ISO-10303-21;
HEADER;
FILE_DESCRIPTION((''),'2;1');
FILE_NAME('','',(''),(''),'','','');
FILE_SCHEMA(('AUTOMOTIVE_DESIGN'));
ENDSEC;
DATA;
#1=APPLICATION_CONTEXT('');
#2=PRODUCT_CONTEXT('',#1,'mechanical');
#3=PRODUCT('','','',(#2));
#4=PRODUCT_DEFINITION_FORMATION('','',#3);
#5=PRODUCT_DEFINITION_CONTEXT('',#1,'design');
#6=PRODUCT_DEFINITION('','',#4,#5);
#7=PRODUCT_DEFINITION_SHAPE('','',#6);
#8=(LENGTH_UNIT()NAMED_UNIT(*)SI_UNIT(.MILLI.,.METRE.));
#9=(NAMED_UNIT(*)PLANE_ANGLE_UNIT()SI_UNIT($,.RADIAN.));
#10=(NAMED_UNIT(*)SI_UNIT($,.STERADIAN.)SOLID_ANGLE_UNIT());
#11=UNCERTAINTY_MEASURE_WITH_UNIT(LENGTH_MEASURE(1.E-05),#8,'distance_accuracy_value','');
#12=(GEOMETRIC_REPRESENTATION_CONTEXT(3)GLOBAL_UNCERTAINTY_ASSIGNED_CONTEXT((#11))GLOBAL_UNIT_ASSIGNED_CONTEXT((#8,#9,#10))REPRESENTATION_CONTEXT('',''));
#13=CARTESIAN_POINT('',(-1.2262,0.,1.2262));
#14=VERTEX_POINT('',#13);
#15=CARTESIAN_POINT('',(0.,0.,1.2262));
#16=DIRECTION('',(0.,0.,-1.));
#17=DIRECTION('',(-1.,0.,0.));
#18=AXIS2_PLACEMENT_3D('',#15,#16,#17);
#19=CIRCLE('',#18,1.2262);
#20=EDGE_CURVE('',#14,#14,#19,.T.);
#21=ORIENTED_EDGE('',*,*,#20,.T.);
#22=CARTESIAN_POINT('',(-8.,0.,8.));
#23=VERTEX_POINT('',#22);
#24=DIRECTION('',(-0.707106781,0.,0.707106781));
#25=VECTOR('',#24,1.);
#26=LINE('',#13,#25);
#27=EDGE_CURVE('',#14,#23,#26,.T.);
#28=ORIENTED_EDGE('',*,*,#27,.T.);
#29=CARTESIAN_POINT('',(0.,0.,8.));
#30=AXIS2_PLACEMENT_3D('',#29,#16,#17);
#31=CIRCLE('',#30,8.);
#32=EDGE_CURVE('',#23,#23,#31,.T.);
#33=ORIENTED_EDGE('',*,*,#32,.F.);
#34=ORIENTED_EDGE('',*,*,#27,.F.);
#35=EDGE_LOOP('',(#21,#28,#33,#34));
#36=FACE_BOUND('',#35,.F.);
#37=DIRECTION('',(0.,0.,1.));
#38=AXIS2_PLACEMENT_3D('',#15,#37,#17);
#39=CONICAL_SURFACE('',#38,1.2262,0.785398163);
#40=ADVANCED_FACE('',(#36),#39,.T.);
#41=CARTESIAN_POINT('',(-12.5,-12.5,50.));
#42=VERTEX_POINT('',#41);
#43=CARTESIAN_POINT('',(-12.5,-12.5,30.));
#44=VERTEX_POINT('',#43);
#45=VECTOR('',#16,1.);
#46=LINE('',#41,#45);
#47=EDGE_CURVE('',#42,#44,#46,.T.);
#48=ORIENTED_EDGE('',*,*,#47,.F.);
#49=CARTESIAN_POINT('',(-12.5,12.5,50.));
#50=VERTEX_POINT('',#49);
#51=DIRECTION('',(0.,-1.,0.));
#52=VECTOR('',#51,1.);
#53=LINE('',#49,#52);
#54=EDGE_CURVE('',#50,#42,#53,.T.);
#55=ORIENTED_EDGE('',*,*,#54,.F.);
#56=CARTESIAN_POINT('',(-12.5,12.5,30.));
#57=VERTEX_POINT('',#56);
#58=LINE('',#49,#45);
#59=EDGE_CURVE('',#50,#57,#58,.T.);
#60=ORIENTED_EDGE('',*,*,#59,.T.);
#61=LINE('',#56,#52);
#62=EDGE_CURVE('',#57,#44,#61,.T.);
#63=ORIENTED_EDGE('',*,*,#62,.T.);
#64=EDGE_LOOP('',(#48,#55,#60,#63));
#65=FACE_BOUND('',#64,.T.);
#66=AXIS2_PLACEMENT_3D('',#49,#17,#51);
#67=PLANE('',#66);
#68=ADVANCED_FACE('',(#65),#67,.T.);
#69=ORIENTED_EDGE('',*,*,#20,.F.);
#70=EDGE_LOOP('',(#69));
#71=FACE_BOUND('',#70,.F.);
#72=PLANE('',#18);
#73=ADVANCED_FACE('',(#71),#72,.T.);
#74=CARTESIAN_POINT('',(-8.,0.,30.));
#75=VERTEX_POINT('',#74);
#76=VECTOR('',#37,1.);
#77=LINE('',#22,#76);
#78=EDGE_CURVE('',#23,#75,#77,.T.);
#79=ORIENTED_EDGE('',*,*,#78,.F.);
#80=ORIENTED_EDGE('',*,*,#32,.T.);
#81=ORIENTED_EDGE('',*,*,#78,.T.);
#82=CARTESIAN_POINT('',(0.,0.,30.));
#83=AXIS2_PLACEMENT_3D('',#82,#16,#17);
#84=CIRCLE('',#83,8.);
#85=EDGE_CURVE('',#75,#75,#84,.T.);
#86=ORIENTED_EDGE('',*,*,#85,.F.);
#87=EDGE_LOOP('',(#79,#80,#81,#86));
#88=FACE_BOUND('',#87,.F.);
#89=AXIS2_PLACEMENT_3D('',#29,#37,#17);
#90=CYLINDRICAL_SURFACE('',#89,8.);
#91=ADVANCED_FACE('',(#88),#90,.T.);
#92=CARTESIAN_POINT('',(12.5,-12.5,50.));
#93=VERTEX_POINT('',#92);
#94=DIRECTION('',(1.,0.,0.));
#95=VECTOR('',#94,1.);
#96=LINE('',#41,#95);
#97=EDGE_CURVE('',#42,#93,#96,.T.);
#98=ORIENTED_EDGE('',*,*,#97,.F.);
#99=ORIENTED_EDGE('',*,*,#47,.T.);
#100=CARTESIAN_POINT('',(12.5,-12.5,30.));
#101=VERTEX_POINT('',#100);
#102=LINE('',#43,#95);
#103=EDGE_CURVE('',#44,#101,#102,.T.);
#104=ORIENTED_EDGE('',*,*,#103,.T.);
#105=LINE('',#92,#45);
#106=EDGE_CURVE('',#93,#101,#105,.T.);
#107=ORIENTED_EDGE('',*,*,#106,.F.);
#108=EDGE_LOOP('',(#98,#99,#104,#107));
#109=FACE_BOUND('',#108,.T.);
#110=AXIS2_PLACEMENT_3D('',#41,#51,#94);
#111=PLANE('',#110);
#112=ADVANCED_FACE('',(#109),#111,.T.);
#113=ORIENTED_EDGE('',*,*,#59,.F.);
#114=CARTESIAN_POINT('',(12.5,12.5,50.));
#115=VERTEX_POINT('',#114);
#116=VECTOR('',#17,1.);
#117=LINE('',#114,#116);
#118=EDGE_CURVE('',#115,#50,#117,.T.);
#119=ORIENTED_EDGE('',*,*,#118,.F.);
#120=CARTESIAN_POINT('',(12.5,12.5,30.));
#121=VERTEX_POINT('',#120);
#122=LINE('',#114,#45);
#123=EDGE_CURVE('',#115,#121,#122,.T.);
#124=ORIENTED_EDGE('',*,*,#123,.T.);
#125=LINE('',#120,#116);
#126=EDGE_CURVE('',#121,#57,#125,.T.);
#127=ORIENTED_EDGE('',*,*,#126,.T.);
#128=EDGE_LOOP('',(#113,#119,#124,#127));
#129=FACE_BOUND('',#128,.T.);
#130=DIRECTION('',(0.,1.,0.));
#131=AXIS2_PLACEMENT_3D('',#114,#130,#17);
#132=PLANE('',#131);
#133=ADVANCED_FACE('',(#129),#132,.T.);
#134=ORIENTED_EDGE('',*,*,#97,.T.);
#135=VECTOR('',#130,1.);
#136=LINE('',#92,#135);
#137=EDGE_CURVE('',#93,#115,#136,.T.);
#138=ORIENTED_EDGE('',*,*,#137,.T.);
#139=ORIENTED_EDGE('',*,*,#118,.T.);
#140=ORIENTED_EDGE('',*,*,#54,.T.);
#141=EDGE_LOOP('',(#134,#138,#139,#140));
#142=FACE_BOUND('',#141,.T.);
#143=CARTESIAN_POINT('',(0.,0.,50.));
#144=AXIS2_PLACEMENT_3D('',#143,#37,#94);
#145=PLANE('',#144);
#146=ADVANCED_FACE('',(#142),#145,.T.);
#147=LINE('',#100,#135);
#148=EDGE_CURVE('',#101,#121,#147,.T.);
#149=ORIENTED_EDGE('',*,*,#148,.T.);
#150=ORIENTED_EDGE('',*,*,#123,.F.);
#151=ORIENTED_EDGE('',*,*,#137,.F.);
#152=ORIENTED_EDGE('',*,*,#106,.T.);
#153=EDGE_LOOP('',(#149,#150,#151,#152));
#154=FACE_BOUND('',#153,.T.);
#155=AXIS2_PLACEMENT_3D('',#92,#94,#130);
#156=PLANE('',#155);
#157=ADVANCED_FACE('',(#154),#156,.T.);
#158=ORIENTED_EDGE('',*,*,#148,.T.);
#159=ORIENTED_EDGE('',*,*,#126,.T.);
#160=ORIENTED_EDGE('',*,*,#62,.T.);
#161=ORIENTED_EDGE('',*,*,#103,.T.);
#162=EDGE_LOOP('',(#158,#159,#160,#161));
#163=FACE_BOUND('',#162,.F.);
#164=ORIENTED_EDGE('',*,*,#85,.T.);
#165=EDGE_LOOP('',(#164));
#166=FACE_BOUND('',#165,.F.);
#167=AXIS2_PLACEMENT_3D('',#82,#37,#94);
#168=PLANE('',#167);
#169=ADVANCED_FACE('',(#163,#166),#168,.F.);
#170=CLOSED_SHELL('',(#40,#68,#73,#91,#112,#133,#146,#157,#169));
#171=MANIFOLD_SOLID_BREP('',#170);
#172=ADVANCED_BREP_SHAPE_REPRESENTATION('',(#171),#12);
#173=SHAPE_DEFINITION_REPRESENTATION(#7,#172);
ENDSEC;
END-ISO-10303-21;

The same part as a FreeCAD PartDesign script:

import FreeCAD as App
import Part
import Sketcher
from FreeCAD import Vector
Q = App.Units.Quantity


def add_polygon(sketch, points):
    """Adds a closed chain of lines whose ends are joined by coincident constraints."""
    first, n = sketch.GeometryCount, len(points)
    for a, b in zip(points, points[1:] + points[:1]):
        sketch.addGeometry(Part.LineSegment(App.Vector(*a, 0), App.Vector(*b, 0)), False)
    for i in range(n):
        sketch.addConstraint(Sketcher.Constraint("Coincident", first + i, 2, first + (i + 1) % n, 1))

doc = App.newDocument("Part")
body = doc.addObject("PartDesign::Body", "Body")

# Sketch on XZ plane
sketch1 = doc.addObject("Sketcher::SketchObject", "Sketch")
body.addObject(sketch1)
sketch1.AttachmentSupport = (doc.XZ_Plane, [""])
sketch1.MapMode = "FlatFace"
add_polygon(sketch1, [(0, 1.2), (-1.2, 1.2), (-8, 8), (-8, 50), (0, 50)])  # lines 0-4
sketch1.addConstraint(Sketcher.Constraint("Horizontal", 0))
sketch1.addConstraint(Sketcher.Constraint("Vertical", 2))
sketch1.addConstraint(Sketcher.Constraint("Horizontal", 3))
sketch1.addConstraint(Sketcher.Constraint("Vertical", 4))
sketch1.addConstraint(Sketcher.Constraint("PointOnObject", 3, 2, -2))
sketch1.addConstraint(Sketcher.Constraint("DistanceX", 3, 1, 3, 2, 8.0))
sketch1.addConstraint(Sketcher.Constraint("Angle", 1, Q("135 deg")))
sketch1.addConstraint(Sketcher.Constraint("DistanceY", -1, 1, 1, 2, 8.0))
sketch1.addConstraint(Sketcher.Constraint("DistanceY", -1, 1, 2, 2, 50.0))
sketch1.addConstraint(Sketcher.Constraint("DistanceX", 0, 2, 0, 1, 1.2262))
revolution = doc.addObject("PartDesign::Revolution", "Revolution")
body.addObject(revolution)
revolution.Profile = sketch1
revolution.ReferenceAxis = (sketch1, ["V_Axis"])
revolution.Angle = 360

# Sketch on XY plane
sketch2 = doc.addObject("Sketcher::SketchObject", "Sketch001")
body.addObject(sketch2)
sketch2.AttachmentSupport = (doc.XY_Plane, [""])
sketch2.MapMode = "FlatFace"
sketch2.AttachmentOffset = App.Placement(Vector(0, 0, 50), App.Rotation())
add_polygon(sketch2, [(-12, 12), (-12, -12), (12, -12), (12, 12)])  # lines 0-3
sketch2.addGeometry(Part.Circle(Vector(0, 0, 0), Vector(0, 0, 1), 8), False)  # 4
sketch2.addConstraint(Sketcher.Constraint("Vertical", 0))
sketch2.addConstraint(Sketcher.Constraint("Horizontal", 1))
sketch2.addConstraint(Sketcher.Constraint("Vertical", 2))
sketch2.addConstraint(Sketcher.Constraint("Horizontal", 3))
sketch2.addConstraint(Sketcher.Constraint("Coincident", 4, 3, -1, 1))
sketch2.addConstraint(Sketcher.Constraint("Symmetric", 0, 2, 2, 2, -1, 1))
sketch2.addConstraint(Sketcher.Constraint("Equal", 3, 0))
sketch2.addConstraint(Sketcher.Constraint("DistanceX", 1, 1, 1, 2, 25.0))
sketch2.addConstraint(Sketcher.Constraint("Diameter", 4, 16.0))
pad1 = doc.addObject("PartDesign::Pad", "Pad")
body.addObject(pad1)
pad1.Profile = sketch2
pad1.Length = 20
pad1.Reversed = True

doc.recompute()
